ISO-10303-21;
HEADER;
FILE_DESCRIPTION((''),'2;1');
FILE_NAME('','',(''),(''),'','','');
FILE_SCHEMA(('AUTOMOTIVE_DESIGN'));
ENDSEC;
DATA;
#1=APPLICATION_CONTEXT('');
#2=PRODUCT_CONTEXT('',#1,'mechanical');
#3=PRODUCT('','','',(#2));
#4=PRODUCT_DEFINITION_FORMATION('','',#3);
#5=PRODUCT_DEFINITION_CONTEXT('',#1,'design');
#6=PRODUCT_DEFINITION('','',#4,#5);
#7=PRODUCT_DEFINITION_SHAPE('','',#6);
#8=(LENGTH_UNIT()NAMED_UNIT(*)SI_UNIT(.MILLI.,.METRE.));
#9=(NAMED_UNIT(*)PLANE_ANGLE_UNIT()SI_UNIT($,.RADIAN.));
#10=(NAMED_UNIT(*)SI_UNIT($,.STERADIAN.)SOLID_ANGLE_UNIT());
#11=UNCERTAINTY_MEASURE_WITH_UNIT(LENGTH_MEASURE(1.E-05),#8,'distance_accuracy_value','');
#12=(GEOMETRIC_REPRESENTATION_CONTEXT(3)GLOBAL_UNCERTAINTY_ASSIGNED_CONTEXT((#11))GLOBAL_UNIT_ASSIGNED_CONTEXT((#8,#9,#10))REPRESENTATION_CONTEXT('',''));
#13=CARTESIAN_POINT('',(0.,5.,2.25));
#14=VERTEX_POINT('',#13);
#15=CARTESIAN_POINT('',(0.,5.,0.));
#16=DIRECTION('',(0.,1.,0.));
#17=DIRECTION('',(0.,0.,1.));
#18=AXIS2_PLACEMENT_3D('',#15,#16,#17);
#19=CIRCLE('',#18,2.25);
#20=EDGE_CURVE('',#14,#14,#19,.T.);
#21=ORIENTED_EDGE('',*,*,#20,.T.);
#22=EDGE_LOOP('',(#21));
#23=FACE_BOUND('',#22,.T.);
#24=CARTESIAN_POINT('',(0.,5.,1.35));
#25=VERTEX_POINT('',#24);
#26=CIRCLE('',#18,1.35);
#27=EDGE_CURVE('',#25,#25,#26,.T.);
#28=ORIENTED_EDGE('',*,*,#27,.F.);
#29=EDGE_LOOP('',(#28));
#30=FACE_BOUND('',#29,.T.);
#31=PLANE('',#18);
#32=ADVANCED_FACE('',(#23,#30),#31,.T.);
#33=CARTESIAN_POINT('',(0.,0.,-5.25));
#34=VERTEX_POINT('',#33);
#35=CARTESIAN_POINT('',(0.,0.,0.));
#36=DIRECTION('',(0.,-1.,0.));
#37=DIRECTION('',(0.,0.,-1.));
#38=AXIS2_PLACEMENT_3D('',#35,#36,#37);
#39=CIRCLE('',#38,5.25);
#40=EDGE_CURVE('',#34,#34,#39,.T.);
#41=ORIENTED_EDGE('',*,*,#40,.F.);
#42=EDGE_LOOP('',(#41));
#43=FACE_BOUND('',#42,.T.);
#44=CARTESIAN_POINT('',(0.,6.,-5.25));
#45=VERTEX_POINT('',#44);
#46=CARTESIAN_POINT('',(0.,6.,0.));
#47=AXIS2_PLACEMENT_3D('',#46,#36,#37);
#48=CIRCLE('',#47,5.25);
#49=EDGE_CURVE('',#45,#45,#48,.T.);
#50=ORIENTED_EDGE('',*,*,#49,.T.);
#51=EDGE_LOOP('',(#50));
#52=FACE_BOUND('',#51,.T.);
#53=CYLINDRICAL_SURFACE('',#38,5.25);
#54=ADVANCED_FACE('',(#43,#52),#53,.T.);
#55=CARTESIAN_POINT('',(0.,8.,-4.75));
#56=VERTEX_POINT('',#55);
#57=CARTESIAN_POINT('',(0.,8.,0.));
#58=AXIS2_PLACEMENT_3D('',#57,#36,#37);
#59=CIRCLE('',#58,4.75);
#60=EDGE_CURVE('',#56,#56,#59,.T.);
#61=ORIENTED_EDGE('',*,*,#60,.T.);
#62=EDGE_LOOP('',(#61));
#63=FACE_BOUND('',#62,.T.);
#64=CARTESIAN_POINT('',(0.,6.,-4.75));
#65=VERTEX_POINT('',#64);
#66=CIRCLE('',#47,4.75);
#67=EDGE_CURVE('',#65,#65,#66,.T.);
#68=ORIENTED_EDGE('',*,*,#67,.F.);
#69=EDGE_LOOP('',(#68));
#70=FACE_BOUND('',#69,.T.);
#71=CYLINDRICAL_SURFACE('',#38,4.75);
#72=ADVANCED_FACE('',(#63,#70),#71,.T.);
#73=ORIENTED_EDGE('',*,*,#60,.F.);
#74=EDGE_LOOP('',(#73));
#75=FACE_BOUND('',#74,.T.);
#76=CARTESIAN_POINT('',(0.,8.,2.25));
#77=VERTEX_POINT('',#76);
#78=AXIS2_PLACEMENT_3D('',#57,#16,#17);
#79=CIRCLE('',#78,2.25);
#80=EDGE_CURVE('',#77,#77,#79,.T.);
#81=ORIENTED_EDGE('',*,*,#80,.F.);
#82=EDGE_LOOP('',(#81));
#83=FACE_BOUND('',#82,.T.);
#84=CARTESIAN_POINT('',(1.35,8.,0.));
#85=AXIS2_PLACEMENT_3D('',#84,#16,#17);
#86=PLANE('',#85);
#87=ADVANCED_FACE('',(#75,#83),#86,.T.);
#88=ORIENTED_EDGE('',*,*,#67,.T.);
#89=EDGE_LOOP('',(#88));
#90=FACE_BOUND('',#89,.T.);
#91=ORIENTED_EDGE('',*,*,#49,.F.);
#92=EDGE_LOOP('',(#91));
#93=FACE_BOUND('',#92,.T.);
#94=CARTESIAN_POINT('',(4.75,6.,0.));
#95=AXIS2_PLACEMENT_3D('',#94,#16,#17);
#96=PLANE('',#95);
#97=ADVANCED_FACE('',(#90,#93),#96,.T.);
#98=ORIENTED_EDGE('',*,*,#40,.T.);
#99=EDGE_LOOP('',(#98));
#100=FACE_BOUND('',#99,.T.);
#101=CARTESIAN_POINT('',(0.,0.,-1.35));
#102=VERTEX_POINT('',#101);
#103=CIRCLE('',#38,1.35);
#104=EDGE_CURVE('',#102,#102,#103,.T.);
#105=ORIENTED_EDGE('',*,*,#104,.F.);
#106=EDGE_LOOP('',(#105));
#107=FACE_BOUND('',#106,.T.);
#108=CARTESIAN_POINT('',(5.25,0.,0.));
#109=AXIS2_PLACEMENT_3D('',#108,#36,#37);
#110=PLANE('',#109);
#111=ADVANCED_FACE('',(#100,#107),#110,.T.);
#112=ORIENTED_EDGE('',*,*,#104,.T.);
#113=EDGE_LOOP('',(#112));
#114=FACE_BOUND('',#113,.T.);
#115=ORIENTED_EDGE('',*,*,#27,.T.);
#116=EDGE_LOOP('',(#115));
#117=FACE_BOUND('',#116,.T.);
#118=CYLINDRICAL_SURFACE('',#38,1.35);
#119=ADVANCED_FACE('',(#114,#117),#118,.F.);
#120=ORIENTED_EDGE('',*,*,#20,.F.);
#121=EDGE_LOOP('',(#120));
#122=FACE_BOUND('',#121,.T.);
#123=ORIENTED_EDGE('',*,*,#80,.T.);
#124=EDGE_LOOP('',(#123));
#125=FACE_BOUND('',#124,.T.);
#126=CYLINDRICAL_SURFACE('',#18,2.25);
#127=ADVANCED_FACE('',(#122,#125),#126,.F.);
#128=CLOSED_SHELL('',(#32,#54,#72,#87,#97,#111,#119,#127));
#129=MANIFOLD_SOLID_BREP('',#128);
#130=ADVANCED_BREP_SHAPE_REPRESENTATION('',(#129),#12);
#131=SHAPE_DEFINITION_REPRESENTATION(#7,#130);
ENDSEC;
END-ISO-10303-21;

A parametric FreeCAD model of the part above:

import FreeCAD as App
import Part
import Sketcher
Q = App.Units.Quantity

doc = App.newDocument("Part")
body = doc.addObject("PartDesign::Body", "Body")

sketch1 = body.newObject("Sketcher::SketchObject", "Sketch")
sketch1.AttachmentSupport = (doc.getObject("XY_Plane"), [""])
sketch1.MapMode = "FlatFace"
sketch1.addGeometry(Part.LineSegment(App.Vector(1.35, 8, 0), App.Vector(1.35, 0, 0)), False)
sketch1.addGeometry(Part.LineSegment(App.Vector(1.35, 0, 0), App.Vector(5.25, 0, 0)), False)
sketch1.addGeometry(Part.LineSegment(App.Vector(5.25, 0, 0), App.Vector(5.25, 6, 0)), False)
sketch1.addGeometry(Part.LineSegment(App.Vector(5.25, 6, 0), App.Vector(4.75, 6, 0)), False)
sketch1.addGeometry(Part.LineSegment(App.Vector(4.75, 6, 0), App.Vector(4.75, 8, 0)), False)
sketch1.addGeometry(Part.LineSegment(App.Vector(4.75, 8, 0), App.Vector(1.35, 8, 0)), False)
sketch1.addConstraint(Sketcher.Constraint("Coincident", 0, 2, 1, 1))
sketch1.addConstraint(Sketcher.Constraint("Coincident", 1, 2, 2, 1))
sketch1.addConstraint(Sketcher.Constraint("Coincident", 2, 2, 3, 1))
sketch1.addConstraint(Sketcher.Constraint("Coincident", 3, 2, 4, 1))
sketch1.addConstraint(Sketcher.Constraint("Coincident", 4, 2, 5, 1))
sketch1.addConstraint(Sketcher.Constraint("Coincident", 5, 2, 0, 1))
sketch1.addConstraint(Sketcher.Constraint("Vertical", 0))
sketch1.addConstraint(Sketcher.Constraint("Horizontal", 1))
sketch1.addConstraint(Sketcher.Constraint("Vertical", 2))
sketch1.addConstraint(Sketcher.Constraint("Horizontal", 3))
sketch1.addConstraint(Sketcher.Constraint("Vertical", 4))
sketch1.addConstraint(Sketcher.Constraint("Horizontal", 5))
sketch1.addConstraint(Sketcher.Constraint("PointOnObject", 0, 2, -1))
sketch1.addConstraint(Sketcher.Constraint("DistanceY", 0, 2, 0, 1, Q("8 mm")))
sketch1.addConstraint(Sketcher.Constraint("DistanceY", 2, 1, 2, 2, Q("6 mm")))
sketch1.addConstraint(Sketcher.Constraint("DistanceX", 1, 1, 1, 2, Q("3.9 mm")))
sketch1.addConstraint(Sketcher.Constraint("DistanceX", 3, 2, 3, 1, Q("0.5 mm")))
sketch1.addConstraint(Sketcher.Constraint("DistanceX", -1, 1, 0, 2, Q("1.35 mm")))
revolution = body.newObject("PartDesign::Revolution", "Revolution")
revolution.Profile = sketch1
revolution.ReferenceAxis = (sketch1, ["V_Axis"])
revolution.Angle = 360

sketch2 = body.newObject("Sketcher::SketchObject", "Sketch001")
sketch2.AttachmentSupport = (doc.getObject("XZ_Plane"), [""])
sketch2.MapMode = "FlatFace"
sketch2.AttachmentOffset = App.Placement(App.Vector(0, 0, -8), App.Rotation())
sketch2.addGeometry(Part.Circle(App.Vector(0, 0, 0), App.Vector(0, 0, 1), 2.25), False)
sketch2.addConstraint(Sketcher.Constraint("Coincident", 0, 3, -1, 1))
sketch2.addConstraint(Sketcher.Constraint("Diameter", 0, Q("4.5 mm")))
pocket1 = body.newObject("PartDesign::Pocket", "Pocket")
pocket1.Profile = sketch2
pocket1.Length = 3
pocket1.Reversed = True

doc.recompute()
